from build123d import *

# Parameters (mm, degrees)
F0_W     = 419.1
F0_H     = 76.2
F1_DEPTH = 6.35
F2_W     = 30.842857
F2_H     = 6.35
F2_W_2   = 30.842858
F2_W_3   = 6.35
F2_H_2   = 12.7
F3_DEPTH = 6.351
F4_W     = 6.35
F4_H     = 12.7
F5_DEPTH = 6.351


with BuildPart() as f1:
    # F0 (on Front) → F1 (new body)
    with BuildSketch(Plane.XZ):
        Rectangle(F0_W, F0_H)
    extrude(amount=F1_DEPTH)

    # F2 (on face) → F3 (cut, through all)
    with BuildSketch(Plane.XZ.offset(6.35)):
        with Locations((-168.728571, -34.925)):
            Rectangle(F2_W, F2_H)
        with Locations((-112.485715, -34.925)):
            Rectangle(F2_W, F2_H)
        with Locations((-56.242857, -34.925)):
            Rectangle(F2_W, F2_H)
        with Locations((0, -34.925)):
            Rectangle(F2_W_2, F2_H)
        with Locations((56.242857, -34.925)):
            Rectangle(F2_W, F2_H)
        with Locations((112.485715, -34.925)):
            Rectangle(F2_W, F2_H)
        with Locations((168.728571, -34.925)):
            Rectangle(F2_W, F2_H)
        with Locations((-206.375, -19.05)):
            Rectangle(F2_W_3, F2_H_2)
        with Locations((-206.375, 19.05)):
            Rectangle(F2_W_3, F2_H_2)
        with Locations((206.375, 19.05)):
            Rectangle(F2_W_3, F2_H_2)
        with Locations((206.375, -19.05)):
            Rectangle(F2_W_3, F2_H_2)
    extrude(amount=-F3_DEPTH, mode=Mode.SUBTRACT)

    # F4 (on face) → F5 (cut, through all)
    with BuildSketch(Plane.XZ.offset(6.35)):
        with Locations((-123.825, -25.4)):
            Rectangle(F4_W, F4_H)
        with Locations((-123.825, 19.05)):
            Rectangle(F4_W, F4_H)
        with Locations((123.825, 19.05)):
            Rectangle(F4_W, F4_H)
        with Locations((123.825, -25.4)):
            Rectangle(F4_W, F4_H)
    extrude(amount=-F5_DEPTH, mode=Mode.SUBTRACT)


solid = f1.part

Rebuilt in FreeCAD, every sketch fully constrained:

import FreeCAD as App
import Part
import Sketcher

V = App.Vector
Q = App.Units.Quantity


def add_polygon(sketch, points):
    """Adds a closed chain of lines whose ends are joined by coincident constraints."""
    first, n = sketch.GeometryCount, len(points)
    for a, b in zip(points, points[1:] + points[:1]):
        sketch.addGeometry(Part.LineSegment(App.Vector(*a, 0), App.Vector(*b, 0)), False)
    for i in range(n):
        sketch.addConstraint(Sketcher.Constraint("Coincident", first + i, 2, first + (i + 1) % n, 1))

doc = App.newDocument("Part")
body = doc.addObject("PartDesign::Body", "Body")

sketch1 = body.newObject("Sketcher::SketchObject", "Sketch")
sketch1.AttachmentSupport = (doc.getObject("XZ_Plane"), [""])
sketch1.MapMode = "FlatFace"
add_polygon(sketch1, [(-210, 38), (-210, -38), (210, -38), (210, 38)])
sketch1.addConstraint(Sketcher.Constraint("Vertical", 0))
sketch1.addConstraint(Sketcher.Constraint("Horizontal", 1))
sketch1.addConstraint(Sketcher.Constraint("Vertical", 2))
sketch1.addConstraint(Sketcher.Constraint("Horizontal", 3))
sketch1.addConstraint(Sketcher.Constraint("Symmetric", 0, 2, 2, 2, -1, 1))
sketch1.addConstraint(Sketcher.Constraint("DistanceY", 0, 2, 0, 1, Q("3 in")))
sketch1.addConstraint(Sketcher.Constraint("DistanceX", 1, 1, 1, 2, Q("16.5 in")))
pad1 = body.newObject("PartDesign::Pad", "Pad")
pad1.Profile = sketch1
pad1.Length = Q("0.25 in")

sketch2 = body.newObject("Sketcher::SketchObject", "Sketch001")
sketch2.AttachmentSupport = (doc.getObject("XZ_Plane"), [""])
sketch2.MapMode = "FlatFace"
sketch2.AttachmentOffset = App.Placement(V(0, 0, 0.25 * 25.4), App.Rotation())
add_polygon(sketch2, [(-184, -32), (-184, -38), (-153, -38), (-153, -32)])
add_polygon(sketch2, [(-128, -32), (-128, -38), (-97, -38), (-97, -32)])
add_polygon(sketch2, [(-72, -32), (-72, -38), (-41, -38), (-41, -32)])
add_polygon(sketch2, [(-15, -32), (-15, -38), (15, -38), (15, -32)])
add_polygon(sketch2, [(41, -32), (41, -38), (72, -38), (72, -32)])
add_polygon(sketch2, [(97, -32), (97, -38), (128, -38), (128, -32)])
add_polygon(sketch2, [(153, -32), (153, -38), (184, -38), (184, -32)])
add_polygon(sketch2, [(-210, -13), (-210, -25), (-203, -25), (-203, -13)])
add_polygon(sketch2, [(-210, 25), (-210, 13), (-203, 13), (-203, 25)])
add_polygon(sketch2, [(203, 25), (203, 13), (210, 13), (210, 25)])
add_polygon(sketch2, [(203, -13), (203, -25), (210, -25), (210, -13)])
sketch2.addConstraint(Sketcher.Constraint("Vertical", 0))
sketch2.addConstraint(Sketcher.Constraint("Horizontal", 1))
sketch2.addConstraint(Sketcher.Constraint("Vertical", 2))
sketch2.addConstraint(Sketcher.Constraint("Horizontal", 3))
sketch2.addConstraint(Sketcher.Constraint("Vertical", 4))
sketch2.addConstraint(Sketcher.Constraint("Horizontal", 5))
sketch2.addConstraint(Sketcher.Constraint("Vertical", 6))
sketch2.addConstraint(Sketcher.Constraint("Horizontal", 7))
sketch2.addConstraint(Sketcher.Constraint("Vertical", 8))
sketch2.addConstraint(Sketcher.Constraint("Horizontal", 9))
sketch2.addConstraint(Sketcher.Constraint("Vertical", 10))
sketch2.addConstraint(Sketcher.Constraint("Horizontal", 11))
sketch2.addConstraint(Sketcher.Constraint("Vertical", 12))
sketch2.addConstraint(Sketcher.Constraint("Horizontal", 13))
sketch2.addConstraint(Sketcher.Constraint("Vertical", 14))
sketch2.addConstraint(Sketcher.Constraint("Horizontal", 15))
sketch2.addConstraint(Sketcher.Constraint("Vertical", 16))
sketch2.addConstraint(Sketcher.Constraint("Horizontal", 17))
sketch2.addConstraint(Sketcher.Constraint("Vertical", 18))
sketch2.addConstraint(Sketcher.Constraint("Horizontal", 19))
sketch2.addConstraint(Sketcher.Constraint("Vertical", 20))
sketch2.addConstraint(Sketcher.Constraint("Horizontal", 21))
sketch2.addConstraint(Sketcher.Constraint("Vertical", 22))
sketch2.addConstraint(Sketcher.Constraint("Horizontal", 23))
sketch2.addConstraint(Sketcher.Constraint("Vertical", 24))
sketch2.addConstraint(Sketcher.Constraint("Horizontal", 25))
sketch2.addConstraint(Sketcher.Constraint("Vertical", 26))
sketch2.addConstraint(Sketcher.Constraint("Horizontal", 27))
sketch2.addConstraint(Sketcher.Constraint("Vertical", 28))
sketch2.addConstraint(Sketcher.Constraint("Horizontal", 29))
sketch2.addConstraint(Sketcher.Constraint("Vertical", 30))
sketch2.addConstraint(Sketcher.Constraint("Horizontal", 31))
sketch2.addConstraint(Sketcher.Constraint("Vertical", 32))
sketch2.addConstraint(Sketcher.Constraint("Horizontal", 33))
sketch2.addConstraint(Sketcher.Constraint("Vertical", 34))
sketch2.addConstraint(Sketcher.Constraint("Horizontal", 35))
sketch2.addConstraint(Sketcher.Constraint("Vertical", 36))
sketch2.addConstraint(Sketcher.Constraint("Horizontal", 37))
sketch2.addConstraint(Sketcher.Constraint("Vertical", 38))
sketch2.addConstraint(Sketcher.Constraint("Horizontal", 39))
sketch2.addConstraint(Sketcher.Constraint("Vertical", 40))
sketch2.addConstraint(Sketcher.Constraint("Horizontal", 41))
sketch2.addConstraint(Sketcher.Constraint("Vertical", 42))
sketch2.addConstraint(Sketcher.Constraint("Horizontal", 43))
sketch2.addConstraint(Sketcher.Constraint("Symmetric", 30, 2, 36, 2, -1, 1))
sketch2.addConstraint(Sketcher.Constraint("Symmetric", 28, 2, 38, 2, -1, 1))
sketch2.addConstraint(Sketcher.Constraint("Symmetric", 34, 2, 40, 2, -1, 1))
sketch2.addConstraint(Sketcher.Constraint("Symmetric", 32, 2, 42, 2, -1, 1))
sketch2.addConstraint(Sketcher.Constraint("Symmetric", 9, 2, 16, 2, -2))
sketch2.addConstraint(Sketcher.Constraint("Symmetric", 11, 2, 18, 2, -2))
sketch2.addConstraint(Sketcher.Constraint("Symmetric", 5, 2, 20, 2, -2))
sketch2.addConstraint(Sketcher.Constraint("Symmetric", 7, 2, 22, 2, -2))
sketch2.addConstraint(Sketcher.Constraint("Symmetric", 1, 2, 24, 2, -2))
sketch2.addConstraint(Sketcher.Constraint("Symmetric", 3, 2, 26, 2, -2))
sketch2.addConstraint(Sketcher.Constraint("Symmetric", 33, 2, 36, 2, -2))
sketch2.addConstraint(Sketcher.Constraint("Symmetric", 35, 2, 38, 2, -2))
sketch2.addConstraint(Sketcher.Constraint("Horizontal", 1, 2, 4, 2))
sketch2.addConstraint(Sketcher.Constraint("Horizontal", 3, 2, 6, 2))
sketch2.addConstraint(Sketcher.Constraint("Horizontal", 5, 2, 8, 2))
sketch2.addConstraint(Sketcher.Constraint("Horizontal", 7, 2, 10, 2))
sketch2.addConstraint(Sketcher.Constraint("Horizontal", 9, 2, 12, 2))
sketch2.addConstraint(Sketcher.Constraint("Horizontal", 11, 2, 14, 2))
sketch2.addConstraint(Sketcher.Constraint("Equal", 3, 5))
sketch2.addConstraint(Sketcher.Constraint("Equal", 7, 9))
sketch2.addConstraint(Sketcher.Constraint("Equal", 11, 13))
sketch2.addConstraint(Sketcher.Constraint("Equal", 43, 0))
sketch2.addConstraint(Sketcher.Constraint("DistanceY", 28, 2, 28, 1, Q("0.5 in")))
sketch2.addConstraint(Sketcher.Constraint("DistanceY", 28, 2, -1, 1, Q("1 in")))
sketch2.addConstraint(Sketcher.Constraint("DistanceX", 29, 2, -1, 1, Q("8 in")))
sketch2.addConstraint(Sketcher.Constraint("DistanceX", 1, 2, 4, 2, Q("1 in")))
sketch2.addConstraint(Sketcher.Constraint("DistanceX", 5, 2, 8, 2, Q("1 in")))
sketch2.addConstraint(Sketcher.Constraint("DistanceX", 9, 2, 12, 2, Q("1 in")))
sketch2.addConstraint(Sketcher.Constraint("DistanceX", 13, 2, 16, 2, Q("1 in")))
sketch2.addConstraint(Sketcher.Constraint("DistanceX", 28, 2, 3, 2, Q("1 in")))
sketch2.addConstraint(Sketcher.Constraint("DistanceY", 0, 2, 30, 2, Q("1 in")))
sketch2.addConstraint(Sketcher.Constraint("DistanceX", 29, 1, 29, 2, Q("0.25 in")))
pocket1 = body.newObject("PartDesign::Pocket", "Pocket")
pocket1.Profile = sketch2
pocket1.Type = "ThroughAll"

sketch3 = body.newObject("Sketcher::SketchObject", "Sketch002")
sketch3.AttachmentSupport = (doc.getObject("XZ_Plane"), [""])
sketch3.MapMode = "FlatFace"
sketch3.AttachmentOffset = App.Placement(V(0, 0, 0.25 * 25.4), App.Rotation())
add_polygon(sketch3, [(-127, -19), (-127, -32), (-121, -32), (-121, -19)])
add_polygon(sketch3, [(-127, 25), (-127, 13), (-121, 13), (-121, 25)])
add_polygon(sketch3, [(121, 25), (121, 13), (127, 13), (127, 25)])
add_polygon(sketch3, [(121, -19), (121, -32), (127, -32), (127, -19)])
sketch3.addConstraint(Sketcher.Constraint("Vertical", 0))
sketch3.addConstraint(Sketcher.Constraint("Horizontal", 1))
sketch3.addConstraint(Sketcher.Constraint("Vertical", 2))
sketch3.addConstraint(Sketcher.Constraint("Horizontal", 3))
sketch3.addConstraint(Sketcher.Constraint("Vertical", 4))
sketch3.addConstraint(Sketcher.Constraint("Horizontal", 5))
sketch3.addConstraint(Sketcher.Constraint("Vertical", 6))
sketch3.addConstraint(Sketcher.Constraint("Horizontal", 7))
sketch3.addConstraint(Sketcher.Constraint("Vertical", 8))
sketch3.addConstraint(Sketcher.Constraint("Horizontal", 9))
sketch3.addConstraint(Sketcher.Constraint("Vertical", 10))
sketch3.addConstraint(Sketcher.Constraint("Horizontal", 11))
sketch3.addConstraint(Sketcher.Constraint("Vertical", 12))
sketch3.addConstraint(Sketcher.Constraint("Horizontal", 13))
sketch3.addConstraint(Sketcher.Constraint("Vertical", 14))
sketch3.addConstraint(Sketcher.Constraint("Horizontal", 15))
sketch3.addConstraint(Sketcher.Constraint("Symmetric", 5, 2, 8, 2, -2))
sketch3.addConstraint(Sketcher.Constraint("Symmetric", 7, 2, 10, 2, -2))
sketch3.addConstraint(Sketcher.Constraint("Symmetric", 1, 2, 12, 2, -2))
sketch3.addConstraint(Sketcher.Constraint("Symmetric", 3, 2, 14, 2, -2))
sketch3.addConstraint(Sketcher.Constraint("Vertical", 3, 2, 4, 2))
sketch3.addConstraint(Sketcher.Constraint("Vertical", 2, 2, 5, 2))
sketch3.addConstraint(Sketcher.Constraint("Equal", 2, 4))
sketch3.addConstraint(Sketcher.Constraint("DistanceY", 0, 2, 0, 1, Q("0.5 in")))
sketch3.addConstraint(Sketcher.Constraint("DistanceX", 0, 2, -1, 1, Q("5 in")))
sketch3.addConstraint(Sketcher.Constraint("DistanceY", -1, 1, 6, 2, Q("1 in")))
sketch3.addConstraint(Sketcher.Constraint("DistanceX", 1, 1, 1, 2, Q("0.25 in")))
sketch3.addConstraint(Sketcher.Constraint("DistanceY", 0, 2, -1, 1, Q("1.25 in")))
pocket2 = body.newObject("PartDesign::Pocket", "Pocket001")
pocket2.Profile = sketch3
pocket2.Type = "ThroughAll"

doc.recompute()
